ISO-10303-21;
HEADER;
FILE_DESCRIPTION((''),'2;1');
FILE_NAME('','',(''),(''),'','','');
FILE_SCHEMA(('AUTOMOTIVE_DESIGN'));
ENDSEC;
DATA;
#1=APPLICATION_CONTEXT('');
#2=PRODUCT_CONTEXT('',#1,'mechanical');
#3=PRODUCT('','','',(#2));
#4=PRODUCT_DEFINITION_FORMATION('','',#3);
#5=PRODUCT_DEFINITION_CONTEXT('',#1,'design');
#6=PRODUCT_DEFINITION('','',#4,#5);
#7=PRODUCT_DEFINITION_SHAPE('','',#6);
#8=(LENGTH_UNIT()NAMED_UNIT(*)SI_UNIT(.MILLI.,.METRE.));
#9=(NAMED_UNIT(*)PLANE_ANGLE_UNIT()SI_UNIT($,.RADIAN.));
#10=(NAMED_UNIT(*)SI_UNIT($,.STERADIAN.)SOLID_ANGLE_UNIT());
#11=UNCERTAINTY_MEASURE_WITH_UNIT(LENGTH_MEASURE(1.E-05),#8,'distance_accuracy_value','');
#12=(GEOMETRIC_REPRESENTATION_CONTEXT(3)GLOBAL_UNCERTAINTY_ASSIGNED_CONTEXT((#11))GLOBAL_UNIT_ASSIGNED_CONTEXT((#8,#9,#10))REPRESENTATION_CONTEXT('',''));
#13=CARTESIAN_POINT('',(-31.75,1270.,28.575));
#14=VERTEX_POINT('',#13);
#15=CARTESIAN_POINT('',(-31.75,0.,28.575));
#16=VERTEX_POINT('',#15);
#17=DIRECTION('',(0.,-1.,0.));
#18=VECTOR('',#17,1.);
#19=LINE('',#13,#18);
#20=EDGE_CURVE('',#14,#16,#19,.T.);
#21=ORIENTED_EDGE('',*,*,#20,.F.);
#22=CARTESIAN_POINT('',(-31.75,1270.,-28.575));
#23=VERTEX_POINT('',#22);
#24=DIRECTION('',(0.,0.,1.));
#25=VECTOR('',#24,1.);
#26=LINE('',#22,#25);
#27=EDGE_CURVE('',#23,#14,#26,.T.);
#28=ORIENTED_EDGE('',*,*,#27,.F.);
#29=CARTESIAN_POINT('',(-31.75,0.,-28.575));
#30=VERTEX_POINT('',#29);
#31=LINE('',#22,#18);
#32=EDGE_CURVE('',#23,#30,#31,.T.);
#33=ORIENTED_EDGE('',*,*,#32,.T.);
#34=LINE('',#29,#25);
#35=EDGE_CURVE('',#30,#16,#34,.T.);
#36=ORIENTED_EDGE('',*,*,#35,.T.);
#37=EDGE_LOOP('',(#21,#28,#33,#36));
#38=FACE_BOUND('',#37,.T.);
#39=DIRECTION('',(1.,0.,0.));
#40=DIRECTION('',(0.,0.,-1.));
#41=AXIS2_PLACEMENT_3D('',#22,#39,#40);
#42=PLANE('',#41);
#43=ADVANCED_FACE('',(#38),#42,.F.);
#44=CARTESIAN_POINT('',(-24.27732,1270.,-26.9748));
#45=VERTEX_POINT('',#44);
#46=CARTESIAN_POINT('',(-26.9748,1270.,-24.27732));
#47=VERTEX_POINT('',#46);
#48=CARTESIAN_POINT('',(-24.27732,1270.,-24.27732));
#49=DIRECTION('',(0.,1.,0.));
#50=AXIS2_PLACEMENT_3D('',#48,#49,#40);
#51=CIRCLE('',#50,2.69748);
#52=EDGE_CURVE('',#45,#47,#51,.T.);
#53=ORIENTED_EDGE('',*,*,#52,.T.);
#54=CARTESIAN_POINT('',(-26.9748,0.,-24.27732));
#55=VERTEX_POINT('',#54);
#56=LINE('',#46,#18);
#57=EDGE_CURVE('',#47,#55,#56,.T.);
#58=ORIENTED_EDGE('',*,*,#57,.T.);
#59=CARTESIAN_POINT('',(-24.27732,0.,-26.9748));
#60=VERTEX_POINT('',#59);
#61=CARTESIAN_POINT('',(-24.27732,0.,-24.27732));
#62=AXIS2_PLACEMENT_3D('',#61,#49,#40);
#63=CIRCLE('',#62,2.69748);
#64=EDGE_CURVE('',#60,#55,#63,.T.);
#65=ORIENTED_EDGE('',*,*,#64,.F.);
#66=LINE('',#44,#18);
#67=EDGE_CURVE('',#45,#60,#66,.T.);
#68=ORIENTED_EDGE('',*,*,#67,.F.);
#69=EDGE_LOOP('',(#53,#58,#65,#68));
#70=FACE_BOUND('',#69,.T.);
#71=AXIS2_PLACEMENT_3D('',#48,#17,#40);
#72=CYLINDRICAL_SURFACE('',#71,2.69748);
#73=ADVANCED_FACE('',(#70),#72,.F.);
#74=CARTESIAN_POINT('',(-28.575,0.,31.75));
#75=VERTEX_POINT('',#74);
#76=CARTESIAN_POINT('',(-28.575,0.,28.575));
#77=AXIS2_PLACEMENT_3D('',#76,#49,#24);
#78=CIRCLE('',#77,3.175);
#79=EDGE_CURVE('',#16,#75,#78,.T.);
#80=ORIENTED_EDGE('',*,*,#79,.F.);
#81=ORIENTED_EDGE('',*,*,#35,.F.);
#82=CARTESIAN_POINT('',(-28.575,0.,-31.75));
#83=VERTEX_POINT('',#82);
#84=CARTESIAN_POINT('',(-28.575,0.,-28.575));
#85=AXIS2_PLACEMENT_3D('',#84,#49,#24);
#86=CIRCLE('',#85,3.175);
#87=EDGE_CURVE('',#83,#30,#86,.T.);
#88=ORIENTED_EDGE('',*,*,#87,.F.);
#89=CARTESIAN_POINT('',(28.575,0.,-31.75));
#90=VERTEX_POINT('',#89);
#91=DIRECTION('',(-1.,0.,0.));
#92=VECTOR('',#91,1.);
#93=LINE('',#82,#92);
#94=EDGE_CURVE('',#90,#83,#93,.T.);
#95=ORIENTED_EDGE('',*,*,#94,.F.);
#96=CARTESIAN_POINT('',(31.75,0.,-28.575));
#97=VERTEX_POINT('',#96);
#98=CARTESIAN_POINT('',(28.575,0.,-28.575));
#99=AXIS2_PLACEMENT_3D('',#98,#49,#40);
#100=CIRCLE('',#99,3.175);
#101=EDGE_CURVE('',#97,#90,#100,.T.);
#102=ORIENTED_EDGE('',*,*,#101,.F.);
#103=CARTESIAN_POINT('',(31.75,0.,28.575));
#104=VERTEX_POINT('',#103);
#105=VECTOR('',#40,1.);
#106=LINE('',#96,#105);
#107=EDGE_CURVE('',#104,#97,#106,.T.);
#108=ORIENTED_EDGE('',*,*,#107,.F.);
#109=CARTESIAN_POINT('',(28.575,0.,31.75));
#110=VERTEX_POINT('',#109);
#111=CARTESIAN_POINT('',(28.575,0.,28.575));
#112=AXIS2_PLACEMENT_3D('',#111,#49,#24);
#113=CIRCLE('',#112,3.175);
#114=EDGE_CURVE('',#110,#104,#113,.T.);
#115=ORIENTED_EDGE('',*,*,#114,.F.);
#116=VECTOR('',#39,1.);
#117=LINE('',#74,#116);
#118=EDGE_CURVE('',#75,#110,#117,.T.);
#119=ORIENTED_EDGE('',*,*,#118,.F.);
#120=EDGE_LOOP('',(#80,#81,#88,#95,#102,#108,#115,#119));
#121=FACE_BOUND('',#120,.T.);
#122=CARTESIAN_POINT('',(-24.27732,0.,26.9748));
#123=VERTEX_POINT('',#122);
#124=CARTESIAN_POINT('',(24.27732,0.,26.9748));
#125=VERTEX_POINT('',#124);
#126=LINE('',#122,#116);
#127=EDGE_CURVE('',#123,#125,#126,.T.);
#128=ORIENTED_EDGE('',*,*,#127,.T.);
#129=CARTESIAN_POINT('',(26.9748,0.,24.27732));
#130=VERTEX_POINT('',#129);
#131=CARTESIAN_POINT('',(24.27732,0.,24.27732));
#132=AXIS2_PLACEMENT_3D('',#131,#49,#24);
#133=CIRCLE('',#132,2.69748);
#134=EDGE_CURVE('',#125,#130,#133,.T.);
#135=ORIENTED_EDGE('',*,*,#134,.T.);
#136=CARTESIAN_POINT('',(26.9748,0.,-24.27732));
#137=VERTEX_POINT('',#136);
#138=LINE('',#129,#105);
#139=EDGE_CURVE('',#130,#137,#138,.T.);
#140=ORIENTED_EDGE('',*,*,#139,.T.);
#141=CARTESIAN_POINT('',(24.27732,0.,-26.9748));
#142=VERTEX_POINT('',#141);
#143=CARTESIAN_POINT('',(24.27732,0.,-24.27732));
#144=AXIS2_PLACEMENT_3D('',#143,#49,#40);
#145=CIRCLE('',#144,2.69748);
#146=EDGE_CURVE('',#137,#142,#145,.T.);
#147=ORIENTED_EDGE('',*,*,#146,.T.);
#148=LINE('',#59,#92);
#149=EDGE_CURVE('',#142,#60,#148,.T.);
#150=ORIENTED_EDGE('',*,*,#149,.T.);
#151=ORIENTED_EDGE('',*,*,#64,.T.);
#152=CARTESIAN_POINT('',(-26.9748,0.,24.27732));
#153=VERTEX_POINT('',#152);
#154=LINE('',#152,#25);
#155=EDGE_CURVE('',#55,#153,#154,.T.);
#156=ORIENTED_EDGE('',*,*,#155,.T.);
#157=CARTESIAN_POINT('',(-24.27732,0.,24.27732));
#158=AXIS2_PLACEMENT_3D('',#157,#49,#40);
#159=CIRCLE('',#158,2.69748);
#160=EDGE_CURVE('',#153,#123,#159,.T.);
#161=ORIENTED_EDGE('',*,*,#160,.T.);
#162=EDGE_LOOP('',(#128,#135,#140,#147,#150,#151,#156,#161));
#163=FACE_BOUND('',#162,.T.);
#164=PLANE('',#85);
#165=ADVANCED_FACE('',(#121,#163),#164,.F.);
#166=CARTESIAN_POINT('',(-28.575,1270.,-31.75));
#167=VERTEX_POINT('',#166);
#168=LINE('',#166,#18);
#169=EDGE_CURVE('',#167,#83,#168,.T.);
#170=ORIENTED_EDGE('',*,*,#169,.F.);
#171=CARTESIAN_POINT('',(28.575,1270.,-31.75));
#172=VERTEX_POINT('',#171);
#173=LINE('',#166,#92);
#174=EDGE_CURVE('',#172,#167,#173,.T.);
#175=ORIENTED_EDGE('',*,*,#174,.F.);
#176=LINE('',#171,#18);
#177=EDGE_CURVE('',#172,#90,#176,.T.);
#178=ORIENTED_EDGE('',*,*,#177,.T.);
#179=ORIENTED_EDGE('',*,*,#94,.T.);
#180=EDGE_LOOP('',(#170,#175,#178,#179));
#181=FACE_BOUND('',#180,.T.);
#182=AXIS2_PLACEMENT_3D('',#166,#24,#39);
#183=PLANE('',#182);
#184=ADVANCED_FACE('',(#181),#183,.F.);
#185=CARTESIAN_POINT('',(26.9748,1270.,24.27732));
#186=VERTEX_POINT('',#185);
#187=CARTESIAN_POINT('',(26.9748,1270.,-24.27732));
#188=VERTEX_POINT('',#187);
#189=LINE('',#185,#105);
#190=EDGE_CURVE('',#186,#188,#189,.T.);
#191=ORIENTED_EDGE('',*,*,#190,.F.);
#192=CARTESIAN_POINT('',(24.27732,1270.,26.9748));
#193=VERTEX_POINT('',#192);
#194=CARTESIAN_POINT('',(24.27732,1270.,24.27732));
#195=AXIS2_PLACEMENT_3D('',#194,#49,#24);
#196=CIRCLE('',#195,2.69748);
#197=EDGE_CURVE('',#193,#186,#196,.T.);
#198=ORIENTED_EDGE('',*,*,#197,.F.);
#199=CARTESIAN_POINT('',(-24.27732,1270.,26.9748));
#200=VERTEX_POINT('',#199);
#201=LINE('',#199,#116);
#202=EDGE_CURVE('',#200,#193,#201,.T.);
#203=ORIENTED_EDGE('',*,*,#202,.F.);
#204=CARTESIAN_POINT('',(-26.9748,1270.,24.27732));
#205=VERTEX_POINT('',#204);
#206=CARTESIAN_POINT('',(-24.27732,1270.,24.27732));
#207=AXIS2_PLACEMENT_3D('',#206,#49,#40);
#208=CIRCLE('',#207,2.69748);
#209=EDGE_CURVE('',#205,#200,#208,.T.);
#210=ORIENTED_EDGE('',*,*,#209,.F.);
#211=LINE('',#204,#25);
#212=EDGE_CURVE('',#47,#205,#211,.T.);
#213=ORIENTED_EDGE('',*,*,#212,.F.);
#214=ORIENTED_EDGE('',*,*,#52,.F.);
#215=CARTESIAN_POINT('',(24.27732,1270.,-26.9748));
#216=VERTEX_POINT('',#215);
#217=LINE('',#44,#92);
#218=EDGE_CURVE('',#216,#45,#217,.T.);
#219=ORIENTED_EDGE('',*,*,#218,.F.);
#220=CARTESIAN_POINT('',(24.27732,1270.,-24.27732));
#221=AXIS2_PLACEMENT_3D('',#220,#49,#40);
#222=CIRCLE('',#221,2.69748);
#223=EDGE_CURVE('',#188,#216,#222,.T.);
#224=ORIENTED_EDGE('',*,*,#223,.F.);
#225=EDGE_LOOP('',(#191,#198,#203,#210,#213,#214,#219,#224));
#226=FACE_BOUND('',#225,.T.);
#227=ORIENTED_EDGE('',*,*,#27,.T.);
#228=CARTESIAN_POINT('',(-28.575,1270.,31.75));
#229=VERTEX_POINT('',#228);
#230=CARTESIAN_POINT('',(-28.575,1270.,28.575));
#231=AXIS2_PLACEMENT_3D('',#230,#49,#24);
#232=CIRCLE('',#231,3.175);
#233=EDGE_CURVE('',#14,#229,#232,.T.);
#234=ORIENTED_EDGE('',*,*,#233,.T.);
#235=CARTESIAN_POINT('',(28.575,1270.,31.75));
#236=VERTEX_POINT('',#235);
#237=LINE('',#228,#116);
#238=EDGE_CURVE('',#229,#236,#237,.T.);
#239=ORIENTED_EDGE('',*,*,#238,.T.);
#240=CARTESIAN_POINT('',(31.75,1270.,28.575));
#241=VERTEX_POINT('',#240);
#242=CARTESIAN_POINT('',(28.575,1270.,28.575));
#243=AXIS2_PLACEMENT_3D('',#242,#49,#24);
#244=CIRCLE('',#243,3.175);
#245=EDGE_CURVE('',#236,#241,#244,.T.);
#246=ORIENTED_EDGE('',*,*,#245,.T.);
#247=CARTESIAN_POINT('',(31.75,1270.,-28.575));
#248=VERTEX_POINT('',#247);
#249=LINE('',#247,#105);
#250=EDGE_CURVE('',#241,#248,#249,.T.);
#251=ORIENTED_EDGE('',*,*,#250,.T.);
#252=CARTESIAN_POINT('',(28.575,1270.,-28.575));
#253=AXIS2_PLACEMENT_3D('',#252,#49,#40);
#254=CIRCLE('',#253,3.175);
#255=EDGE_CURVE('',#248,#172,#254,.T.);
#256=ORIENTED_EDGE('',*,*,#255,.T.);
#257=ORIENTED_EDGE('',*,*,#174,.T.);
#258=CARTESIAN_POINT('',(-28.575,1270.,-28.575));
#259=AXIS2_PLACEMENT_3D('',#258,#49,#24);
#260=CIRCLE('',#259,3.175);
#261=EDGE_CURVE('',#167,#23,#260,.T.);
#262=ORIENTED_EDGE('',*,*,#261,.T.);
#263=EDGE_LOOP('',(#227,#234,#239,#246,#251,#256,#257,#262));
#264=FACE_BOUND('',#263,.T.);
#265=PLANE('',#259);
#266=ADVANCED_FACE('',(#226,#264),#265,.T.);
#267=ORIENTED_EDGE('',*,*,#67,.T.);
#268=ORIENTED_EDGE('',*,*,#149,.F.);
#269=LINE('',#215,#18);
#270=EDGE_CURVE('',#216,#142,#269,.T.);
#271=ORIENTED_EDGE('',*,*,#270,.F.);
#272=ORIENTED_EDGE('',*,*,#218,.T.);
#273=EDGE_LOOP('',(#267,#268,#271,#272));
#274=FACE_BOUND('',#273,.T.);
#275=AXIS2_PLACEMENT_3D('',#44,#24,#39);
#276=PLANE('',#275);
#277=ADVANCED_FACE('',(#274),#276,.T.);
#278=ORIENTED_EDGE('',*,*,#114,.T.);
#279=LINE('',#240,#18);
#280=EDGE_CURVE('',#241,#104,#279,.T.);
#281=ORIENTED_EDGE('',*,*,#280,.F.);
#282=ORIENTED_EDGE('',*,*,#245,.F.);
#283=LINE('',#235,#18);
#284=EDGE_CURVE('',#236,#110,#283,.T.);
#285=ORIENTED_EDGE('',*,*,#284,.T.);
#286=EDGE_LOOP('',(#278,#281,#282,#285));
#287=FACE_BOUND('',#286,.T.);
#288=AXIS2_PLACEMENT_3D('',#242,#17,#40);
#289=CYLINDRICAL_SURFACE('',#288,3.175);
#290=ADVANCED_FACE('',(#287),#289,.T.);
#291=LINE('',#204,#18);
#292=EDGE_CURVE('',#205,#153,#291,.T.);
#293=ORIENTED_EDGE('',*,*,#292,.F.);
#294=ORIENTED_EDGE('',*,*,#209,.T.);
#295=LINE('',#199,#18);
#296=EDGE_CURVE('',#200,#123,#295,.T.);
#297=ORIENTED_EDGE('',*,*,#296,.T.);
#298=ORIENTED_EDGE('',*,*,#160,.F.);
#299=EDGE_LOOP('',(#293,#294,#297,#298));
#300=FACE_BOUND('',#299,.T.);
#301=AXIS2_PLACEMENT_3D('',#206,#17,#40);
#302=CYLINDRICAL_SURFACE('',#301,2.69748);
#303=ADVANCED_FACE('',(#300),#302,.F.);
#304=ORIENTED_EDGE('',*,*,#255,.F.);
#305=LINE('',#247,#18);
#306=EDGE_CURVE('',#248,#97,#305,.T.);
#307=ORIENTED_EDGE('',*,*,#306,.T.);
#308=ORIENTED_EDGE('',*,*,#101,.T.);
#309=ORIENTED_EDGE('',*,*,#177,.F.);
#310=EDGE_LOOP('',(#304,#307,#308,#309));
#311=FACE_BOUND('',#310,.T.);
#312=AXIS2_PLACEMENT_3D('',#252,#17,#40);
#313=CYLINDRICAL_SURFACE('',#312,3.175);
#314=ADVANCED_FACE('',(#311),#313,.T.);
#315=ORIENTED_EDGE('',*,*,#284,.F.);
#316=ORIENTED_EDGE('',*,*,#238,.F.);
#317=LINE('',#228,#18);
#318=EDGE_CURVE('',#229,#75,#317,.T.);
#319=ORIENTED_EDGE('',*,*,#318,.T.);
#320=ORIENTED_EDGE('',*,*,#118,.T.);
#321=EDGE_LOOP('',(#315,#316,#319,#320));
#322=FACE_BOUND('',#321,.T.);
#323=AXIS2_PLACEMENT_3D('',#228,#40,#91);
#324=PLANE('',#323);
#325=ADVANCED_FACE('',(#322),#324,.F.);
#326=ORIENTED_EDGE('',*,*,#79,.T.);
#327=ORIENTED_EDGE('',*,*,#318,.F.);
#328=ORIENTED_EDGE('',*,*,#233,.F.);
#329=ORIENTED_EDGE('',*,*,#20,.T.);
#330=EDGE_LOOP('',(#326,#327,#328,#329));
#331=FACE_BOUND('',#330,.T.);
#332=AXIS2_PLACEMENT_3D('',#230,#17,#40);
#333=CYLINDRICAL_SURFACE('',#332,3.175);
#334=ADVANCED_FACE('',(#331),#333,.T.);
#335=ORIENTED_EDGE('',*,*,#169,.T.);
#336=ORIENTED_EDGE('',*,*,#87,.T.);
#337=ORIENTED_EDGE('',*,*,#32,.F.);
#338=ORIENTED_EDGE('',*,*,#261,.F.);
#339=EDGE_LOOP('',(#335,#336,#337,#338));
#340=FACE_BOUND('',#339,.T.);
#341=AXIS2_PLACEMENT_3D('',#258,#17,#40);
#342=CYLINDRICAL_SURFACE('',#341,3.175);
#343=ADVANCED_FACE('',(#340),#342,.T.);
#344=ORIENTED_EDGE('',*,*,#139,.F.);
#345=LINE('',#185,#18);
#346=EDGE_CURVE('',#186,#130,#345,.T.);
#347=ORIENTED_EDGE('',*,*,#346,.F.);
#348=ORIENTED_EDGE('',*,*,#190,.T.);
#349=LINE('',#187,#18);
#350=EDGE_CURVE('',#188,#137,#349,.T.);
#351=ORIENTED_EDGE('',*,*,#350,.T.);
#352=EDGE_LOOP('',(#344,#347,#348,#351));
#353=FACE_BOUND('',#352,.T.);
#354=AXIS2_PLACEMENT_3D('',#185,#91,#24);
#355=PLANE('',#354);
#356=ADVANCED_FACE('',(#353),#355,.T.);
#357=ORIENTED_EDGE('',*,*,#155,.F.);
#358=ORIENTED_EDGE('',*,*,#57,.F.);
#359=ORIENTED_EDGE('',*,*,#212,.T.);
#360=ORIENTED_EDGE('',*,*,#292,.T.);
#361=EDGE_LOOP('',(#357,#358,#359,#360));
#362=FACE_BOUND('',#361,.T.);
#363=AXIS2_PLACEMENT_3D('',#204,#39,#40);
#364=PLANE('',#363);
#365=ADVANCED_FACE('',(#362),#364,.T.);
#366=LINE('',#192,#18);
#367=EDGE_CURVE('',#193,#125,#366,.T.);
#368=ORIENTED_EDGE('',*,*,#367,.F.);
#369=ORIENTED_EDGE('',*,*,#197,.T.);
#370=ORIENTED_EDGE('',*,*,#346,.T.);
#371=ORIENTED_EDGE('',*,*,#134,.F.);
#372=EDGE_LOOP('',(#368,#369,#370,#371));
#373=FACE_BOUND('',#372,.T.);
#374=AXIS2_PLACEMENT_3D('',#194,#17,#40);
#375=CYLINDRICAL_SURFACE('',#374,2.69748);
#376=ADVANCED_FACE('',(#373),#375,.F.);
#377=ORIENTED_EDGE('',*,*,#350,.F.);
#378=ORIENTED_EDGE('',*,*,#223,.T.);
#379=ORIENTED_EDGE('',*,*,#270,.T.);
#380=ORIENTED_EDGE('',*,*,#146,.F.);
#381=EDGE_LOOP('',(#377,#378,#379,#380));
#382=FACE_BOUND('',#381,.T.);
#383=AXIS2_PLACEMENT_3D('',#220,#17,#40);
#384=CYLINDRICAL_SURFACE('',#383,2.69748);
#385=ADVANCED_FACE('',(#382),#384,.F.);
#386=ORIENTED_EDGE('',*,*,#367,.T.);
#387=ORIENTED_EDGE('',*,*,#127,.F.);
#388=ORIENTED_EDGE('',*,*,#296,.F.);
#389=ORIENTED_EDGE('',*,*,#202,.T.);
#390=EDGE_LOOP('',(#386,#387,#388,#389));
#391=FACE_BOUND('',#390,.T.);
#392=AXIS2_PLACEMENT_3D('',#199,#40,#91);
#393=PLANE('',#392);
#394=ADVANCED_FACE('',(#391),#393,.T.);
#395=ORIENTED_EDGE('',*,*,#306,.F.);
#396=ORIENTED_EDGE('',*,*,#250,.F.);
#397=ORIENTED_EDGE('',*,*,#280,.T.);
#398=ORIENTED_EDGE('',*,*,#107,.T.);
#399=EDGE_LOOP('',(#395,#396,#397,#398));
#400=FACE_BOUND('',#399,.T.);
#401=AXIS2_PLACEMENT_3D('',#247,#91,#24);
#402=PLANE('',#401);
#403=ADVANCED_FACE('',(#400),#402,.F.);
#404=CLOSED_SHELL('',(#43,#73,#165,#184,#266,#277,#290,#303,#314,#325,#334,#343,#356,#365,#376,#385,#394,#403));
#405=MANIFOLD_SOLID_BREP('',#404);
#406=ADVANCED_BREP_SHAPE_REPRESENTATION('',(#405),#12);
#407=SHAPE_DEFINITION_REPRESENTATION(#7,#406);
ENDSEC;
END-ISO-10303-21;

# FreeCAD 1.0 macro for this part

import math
import FreeCAD as App
import Part
import Sketcher
from FreeCAD import Vector
Q = App.Units.Quantity

doc = App.newDocument("Part")
params = doc.addObject("Spreadsheet::Sheet", "Params")
for row, (alias, value) in enumerate([
    ("sketch1_radius", "0.125 in"),
    ("sketch1_width", "2.25 in"),
    ("pad1_length", "50 in"),
], start=1):
    params.set(f"A{row}", alias)
    params.set(f"B{row}", "=" + value)
    params.setAlias(f"B{row}", alias)

body = doc.addObject("PartDesign::Body", "Body")

# Sketch on XZ plane
sketch1 = body.newObject("Sketcher::SketchObject", "Sketch")
sketch1.AttachmentSupport = (doc.getObject("XZ_Plane"), [""])
sketch1.MapMode = "FlatFace"
sketch1.addGeometry([
    Part.LineSegment(Vector(28.6, -31.8, 0), Vector(-28.6, -31.8, 0)),  # 0
    Part.ArcOfCircle(Part.Circle(Vector(-28.6, -28.6, 0), Vector(0, 0, 1), 3.2), math.radians(-180), math.radians(-90)),  # 1
    Part.LineSegment(Vector(-31.8, -28.6, 0), Vector(-31.8, 28.6, 0)),  # 2
    Part.ArcOfCircle(Part.Circle(Vector(-28.6, 28.6, 0), Vector(0, 0, 1), 3.2), math.radians(90), math.radians(180)),  # 3
    Part.LineSegment(Vector(-28.6, 31.8, 0), Vector(28.6, 31.8, 0)),  # 4
    Part.ArcOfCircle(Part.Circle(Vector(28.6, 28.6, 0), Vector(0, 0, 1), 3.2), math.radians(0), math.radians(90)),  # 5
    Part.LineSegment(Vector(31.8, 28.6, 0), Vector(31.8, -28.6, 0)),  # 6
    Part.ArcOfCircle(Part.Circle(Vector(28.6, -28.6, 0), Vector(0, 0, 1), 3.2), math.radians(-90), math.radians(0)),  # 7
    Part.ArcOfCircle(Part.Circle(Vector(-24.3, 24.3, 0), Vector(0, 0, 1), 2.7), math.radians(90), math.radians(180)),  # 8
    Part.LineSegment(Vector(-27, 24.3, 0), Vector(-27, -24.3, 0)),  # 9
    Part.ArcOfCircle(Part.Circle(Vector(-24.3, -24.3, 0), Vector(0, 0, 1), 2.7), math.radians(180), math.radians(270)),  # 10
    Part.LineSegment(Vector(-24.3, -27, 0), Vector(24.3, -27, 0)),  # 11
    Part.ArcOfCircle(Part.Circle(Vector(24.3, -24.3, 0), Vector(0, 0, 1), 2.7), math.radians(-90), math.radians(0)),  # 12
    Part.LineSegment(Vector(27, -24.3, 0), Vector(27, 24.3, 0)),  # 13
    Part.ArcOfCircle(Part.Circle(Vector(24.3, 24.3, 0), Vector(0, 0, 1), 2.7), math.radians(0), math.radians(90)),  # 14
    Part.LineSegment(Vector(24.3, 27, 0), Vector(-24.3, 27, 0)),  # 15
], False)
sketch1.addConstraint([
    Sketcher.Constraint("Tangent", 0, 2, 1, 2),
    Sketcher.Constraint("Tangent", 1, 1, 2, 1),
    Sketcher.Constraint("Tangent", 2, 2, 3, 2),
    Sketcher.Constraint("Tangent", 3, 1, 4, 1),
    Sketcher.Constraint("Tangent", 4, 2, 5, 2),
    Sketcher.Constraint("Tangent", 5, 1, 6, 1),
    Sketcher.Constraint("Tangent", 6, 2, 7, 2),
    Sketcher.Constraint("Tangent", 7, 1, 0, 1),
    Sketcher.Constraint("Tangent", 8, 2, 9, 1),
    Sketcher.Constraint("Tangent", 9, 2, 10, 1),
    Sketcher.Constraint("Tangent", 10, 2, 11, 1),
    Sketcher.Constraint("Tangent", 11, 2, 12, 1),
    Sketcher.Constraint("Tangent", 12, 2, 13, 1),
    Sketcher.Constraint("Tangent", 13, 2, 14, 1),
    Sketcher.Constraint("Tangent", 14, 2, 15, 1),
    Sketcher.Constraint("Tangent", 15, 2, 8, 1),
    Sketcher.Constraint("Horizontal", 0),
    Sketcher.Constraint("Vertical", 2),
    Sketcher.Constraint("Horizontal", 4),
    Sketcher.Constraint("Vertical", 6),
    Sketcher.Constraint("Vertical", 9),
    Sketcher.Constraint("Horizontal", 11),
    Sketcher.Constraint("Vertical", 13),
    Sketcher.Constraint("Horizontal", 15),
    Sketcher.Constraint("Equal", 1, 3),
    Sketcher.Constraint("Equal", 3, 5),
    Sketcher.Constraint("Equal", 5, 7),
    Sketcher.Constraint("Equal", 8, 10),
    Sketcher.Constraint("Equal", 10, 12),
    Sketcher.Constraint("Equal", 12, 14),
    Sketcher.Constraint("Symmetric", 1, 3, 5, 3, -1, 1),
    Sketcher.Constraint("Symmetric", 8, 3, 12, 3, -1, 1),
    Sketcher.Constraint("Equal", 4, 2),
    Sketcher.Constraint("Equal", 15, 9),
    Sketcher.Constraint("Radius", 1, Q("0.125 in")),
    Sketcher.Constraint("DistanceX", 0, 2, 0, 1, Q("2.25 in")),
    Sketcher.Constraint("Radius", 8, Q("0.1062 in")),
    Sketcher.Constraint("DistanceX", 11, 1, 11, 2, Q("1.9116 in")),
])
sketch1.setExpression("Constraints[34]", "Params.sketch1_radius")
sketch1.setExpression("Constraints[35]", "Params.sketch1_width")
pad1 = body.newObject("PartDesign::Pad", "Pad")
pad1.Profile = sketch1
pad1.setExpression("Length", "Params.pad1_length")
pad1.Reversed = True

doc.recompute()
